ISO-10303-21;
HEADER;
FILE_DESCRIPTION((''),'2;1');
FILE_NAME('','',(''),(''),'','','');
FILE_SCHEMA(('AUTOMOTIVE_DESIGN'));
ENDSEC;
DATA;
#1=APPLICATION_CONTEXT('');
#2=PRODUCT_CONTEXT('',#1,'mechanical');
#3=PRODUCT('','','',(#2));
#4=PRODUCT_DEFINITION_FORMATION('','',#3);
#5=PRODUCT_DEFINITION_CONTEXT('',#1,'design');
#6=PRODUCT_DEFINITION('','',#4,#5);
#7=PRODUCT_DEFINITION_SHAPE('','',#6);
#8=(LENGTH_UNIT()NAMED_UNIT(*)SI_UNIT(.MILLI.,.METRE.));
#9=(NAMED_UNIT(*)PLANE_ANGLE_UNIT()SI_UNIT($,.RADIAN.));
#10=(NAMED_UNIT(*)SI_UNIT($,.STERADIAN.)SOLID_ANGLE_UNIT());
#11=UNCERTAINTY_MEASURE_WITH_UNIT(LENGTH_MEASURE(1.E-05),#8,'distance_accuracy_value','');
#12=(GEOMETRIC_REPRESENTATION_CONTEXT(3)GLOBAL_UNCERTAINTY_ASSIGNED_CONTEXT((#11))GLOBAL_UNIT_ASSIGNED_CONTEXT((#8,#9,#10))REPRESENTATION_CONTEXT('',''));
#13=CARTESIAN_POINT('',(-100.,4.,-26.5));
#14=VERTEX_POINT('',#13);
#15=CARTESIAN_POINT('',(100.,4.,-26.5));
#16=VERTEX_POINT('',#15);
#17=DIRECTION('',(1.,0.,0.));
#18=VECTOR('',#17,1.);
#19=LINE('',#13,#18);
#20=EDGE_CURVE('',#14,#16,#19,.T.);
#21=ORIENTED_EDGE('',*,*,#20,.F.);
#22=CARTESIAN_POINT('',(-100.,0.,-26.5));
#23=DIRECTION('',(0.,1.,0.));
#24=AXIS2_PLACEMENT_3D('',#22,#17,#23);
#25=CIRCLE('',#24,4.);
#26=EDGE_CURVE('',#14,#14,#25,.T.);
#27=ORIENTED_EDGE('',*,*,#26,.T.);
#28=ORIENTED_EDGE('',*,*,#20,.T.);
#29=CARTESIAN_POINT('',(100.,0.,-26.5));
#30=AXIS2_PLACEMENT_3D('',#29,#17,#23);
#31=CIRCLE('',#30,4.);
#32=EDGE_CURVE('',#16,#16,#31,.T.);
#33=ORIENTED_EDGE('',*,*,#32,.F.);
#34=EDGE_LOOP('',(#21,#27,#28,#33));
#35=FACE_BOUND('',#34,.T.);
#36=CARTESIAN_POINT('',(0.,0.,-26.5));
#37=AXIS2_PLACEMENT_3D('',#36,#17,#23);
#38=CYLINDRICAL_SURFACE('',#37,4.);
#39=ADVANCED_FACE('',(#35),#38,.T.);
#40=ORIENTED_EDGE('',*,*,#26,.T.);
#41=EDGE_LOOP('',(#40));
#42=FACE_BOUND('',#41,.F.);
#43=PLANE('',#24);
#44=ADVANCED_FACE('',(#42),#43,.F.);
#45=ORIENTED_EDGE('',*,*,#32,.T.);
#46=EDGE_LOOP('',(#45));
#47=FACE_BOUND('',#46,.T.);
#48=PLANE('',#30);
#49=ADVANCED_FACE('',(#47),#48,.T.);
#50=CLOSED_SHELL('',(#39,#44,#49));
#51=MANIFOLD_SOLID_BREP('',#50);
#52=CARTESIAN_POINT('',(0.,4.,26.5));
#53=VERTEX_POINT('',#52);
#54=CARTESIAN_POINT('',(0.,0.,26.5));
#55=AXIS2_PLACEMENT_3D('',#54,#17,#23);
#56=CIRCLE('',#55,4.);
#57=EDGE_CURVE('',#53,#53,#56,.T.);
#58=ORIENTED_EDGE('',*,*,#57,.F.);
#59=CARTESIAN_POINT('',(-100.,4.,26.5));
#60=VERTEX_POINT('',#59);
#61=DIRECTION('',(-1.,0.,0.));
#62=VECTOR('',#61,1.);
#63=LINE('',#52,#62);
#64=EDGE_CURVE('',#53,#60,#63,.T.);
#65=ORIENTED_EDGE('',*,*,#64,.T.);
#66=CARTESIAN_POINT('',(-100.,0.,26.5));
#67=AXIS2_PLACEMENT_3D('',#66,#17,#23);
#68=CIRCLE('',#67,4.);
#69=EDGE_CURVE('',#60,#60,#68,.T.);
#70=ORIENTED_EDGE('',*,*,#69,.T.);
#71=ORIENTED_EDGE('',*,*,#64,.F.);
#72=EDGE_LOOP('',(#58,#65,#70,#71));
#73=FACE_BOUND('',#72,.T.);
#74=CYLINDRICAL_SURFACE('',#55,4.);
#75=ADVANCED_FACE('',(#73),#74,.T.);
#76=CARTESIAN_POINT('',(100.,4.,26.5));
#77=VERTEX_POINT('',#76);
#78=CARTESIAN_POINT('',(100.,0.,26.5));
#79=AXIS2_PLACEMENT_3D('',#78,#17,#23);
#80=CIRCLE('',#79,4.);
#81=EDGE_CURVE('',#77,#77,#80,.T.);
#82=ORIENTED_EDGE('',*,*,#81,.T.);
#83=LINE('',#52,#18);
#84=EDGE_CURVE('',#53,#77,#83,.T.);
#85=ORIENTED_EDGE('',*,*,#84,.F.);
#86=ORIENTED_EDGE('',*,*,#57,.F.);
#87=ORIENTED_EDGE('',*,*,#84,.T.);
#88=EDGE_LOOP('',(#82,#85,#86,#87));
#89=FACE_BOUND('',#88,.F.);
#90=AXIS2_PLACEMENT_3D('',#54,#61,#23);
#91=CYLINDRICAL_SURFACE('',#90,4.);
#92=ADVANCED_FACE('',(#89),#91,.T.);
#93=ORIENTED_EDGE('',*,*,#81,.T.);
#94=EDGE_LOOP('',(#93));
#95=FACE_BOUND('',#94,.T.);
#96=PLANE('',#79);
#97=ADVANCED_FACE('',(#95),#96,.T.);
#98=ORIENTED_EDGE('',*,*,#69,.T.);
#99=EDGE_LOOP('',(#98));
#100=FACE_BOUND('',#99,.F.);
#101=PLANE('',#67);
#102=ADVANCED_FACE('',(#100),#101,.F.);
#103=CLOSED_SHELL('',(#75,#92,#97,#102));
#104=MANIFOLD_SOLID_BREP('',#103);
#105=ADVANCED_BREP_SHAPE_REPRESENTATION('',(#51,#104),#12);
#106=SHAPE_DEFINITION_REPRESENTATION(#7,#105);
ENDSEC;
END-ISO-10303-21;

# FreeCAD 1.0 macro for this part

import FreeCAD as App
import Part
import Sketcher

V = App.Vector
Q = App.Units.Quantity

doc = App.newDocument("Part")
params = doc.addObject("Spreadsheet::Sheet", "Params")
for row, (alias, value) in enumerate([
    ("sketch1_diameter", "8 mm"),
    ("pad1_length", "200 mm"),
], start=1):
    params.set(f"A{row}", alias)
    params.set(f"B{row}", "=" + value)
    params.setAlias(f"B{row}", alias)

body = doc.addObject("PartDesign::Body", "Body")
body.AllowCompound = True

# Sketch on YZ plane
sketch1 = body.newObject("Sketcher::SketchObject", "Sketch")
sketch1.AttachmentSupport = (doc.getObject("YZ_Plane"), [""])
sketch1.MapMode = "FlatFace"
sketch1.addGeometry([
    Part.Circle(V(0, 26.5, 0), V(0, 0, 1), 4),
    Part.Circle(V(0, -26.5, 0), V(0, 0, 1), 4),
], False)
sketch1.addConstraint([
    Sketcher.Constraint("Equal", 0, 1),
    Sketcher.Constraint("Symmetric", 0, 3, 1, 3, -1, 1),
    Sketcher.Constraint("PointOnObject", 0, 3, -2),
    Sketcher.Constraint("Diameter", 0, Q("8 mm")),
    Sketcher.Constraint("DistanceY", 1, 3, 0, 3, Q("53 mm")),
])
sketch1.setExpression("Constraints[3]", "Params.sketch1_diameter")
pad1 = body.newObject("PartDesign::Pad", "Pad")
pad1.Profile = sketch1
pad1.setExpression("Length", "Params.pad1_length")
pad1.Midplane = True

doc.recompute()
